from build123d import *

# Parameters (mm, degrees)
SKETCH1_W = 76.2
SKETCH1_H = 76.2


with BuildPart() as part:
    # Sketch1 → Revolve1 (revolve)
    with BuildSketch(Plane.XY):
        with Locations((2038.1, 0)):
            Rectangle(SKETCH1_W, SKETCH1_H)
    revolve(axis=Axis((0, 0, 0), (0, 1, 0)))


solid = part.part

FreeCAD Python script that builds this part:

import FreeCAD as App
import Part
import Sketcher
Q = App.Units.Quantity

doc = App.newDocument("Part")
params = doc.addObject("Spreadsheet::Sheet", "Params")
for row, (alias, value) in enumerate([
    ("sketch1_width", "3 in"),
    ("revolution_angle", "360 deg"),
], start=1):
    params.set(f"A{row}", alias)
    params.set(f"B{row}", "=" + value)
    params.setAlias(f"B{row}", alias)

body = doc.addObject("PartDesign::Body", "Body")

sketch1 = body.newObject("Sketcher::SketchObject", "Sketch")
sketch1.AttachmentSupport = (doc.getObject("XY_Plane"), [""])
sketch1.MapMode = "FlatFace"
sketch1.addGeometry([
    Part.LineSegment(App.Vector(2000, 38, 0), App.Vector(2000, -38, 0)),
    Part.LineSegment(App.Vector(2000, -38, 0), App.Vector(2076, -38, 0)),
    Part.LineSegment(App.Vector(2076, -38, 0), App.Vector(2076, 38, 0)),
    Part.LineSegment(App.Vector(2076, 38, 0), App.Vector(2000, 38, 0)),
], False)
sketch1.addConstraint([
    Sketcher.Constraint("Coincident", 0, 2, 1, 1),
    Sketcher.Constraint("Coincident", 1, 2, 2, 1),
    Sketcher.Constraint("Coincident", 2, 2, 3, 1),
    Sketcher.Constraint("Coincident", 3, 2, 0, 1),
    Sketcher.Constraint("Vertical", 0),
    Sketcher.Constraint("Horizontal", 1),
    Sketcher.Constraint("Vertical", 2),
    Sketcher.Constraint("Horizontal", 3),
    Sketcher.Constraint("Equal", 3, 0),
    Sketcher.Constraint("DistanceX", 1, 1, 1, 2, Q("3 in")),
    Sketcher.Constraint("DistanceY", 0, 2, -1, 1, Q("1.5 in")),
    Sketcher.Constraint("DistanceX", -1, 1, 0, 2, Q("2000 mm")),
])
sketch1.setExpression("Constraints[9]", "Params.sketch1_width")
revolution = body.newObject("PartDesign::Revolution", "Revolution")
revolution.Profile = sketch1
revolution.ReferenceAxis = (sketch1, ["V_Axis"])
revolution.setExpression("Angle", "Params.revolution_angle")

doc.recompute()
